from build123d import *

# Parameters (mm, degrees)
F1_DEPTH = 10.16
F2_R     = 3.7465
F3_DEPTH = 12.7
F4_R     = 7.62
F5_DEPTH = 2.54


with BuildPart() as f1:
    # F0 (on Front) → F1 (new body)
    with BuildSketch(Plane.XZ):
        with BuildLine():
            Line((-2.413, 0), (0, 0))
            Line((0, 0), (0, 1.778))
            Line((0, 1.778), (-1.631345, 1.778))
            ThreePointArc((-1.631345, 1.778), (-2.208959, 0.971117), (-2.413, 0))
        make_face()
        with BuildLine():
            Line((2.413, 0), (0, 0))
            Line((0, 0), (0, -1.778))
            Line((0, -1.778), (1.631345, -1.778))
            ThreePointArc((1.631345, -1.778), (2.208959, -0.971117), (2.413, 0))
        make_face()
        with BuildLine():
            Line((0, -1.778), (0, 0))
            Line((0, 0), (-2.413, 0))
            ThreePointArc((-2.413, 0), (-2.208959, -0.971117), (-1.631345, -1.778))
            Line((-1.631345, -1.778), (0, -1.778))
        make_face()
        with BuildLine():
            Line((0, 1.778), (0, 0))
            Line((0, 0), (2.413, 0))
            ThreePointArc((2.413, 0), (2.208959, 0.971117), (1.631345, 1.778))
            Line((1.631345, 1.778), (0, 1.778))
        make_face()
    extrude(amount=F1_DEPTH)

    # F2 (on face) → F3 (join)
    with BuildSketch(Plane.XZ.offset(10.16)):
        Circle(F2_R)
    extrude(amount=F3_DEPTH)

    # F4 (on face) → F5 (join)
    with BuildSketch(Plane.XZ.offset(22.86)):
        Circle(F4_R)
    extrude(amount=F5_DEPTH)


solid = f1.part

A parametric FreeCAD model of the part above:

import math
import FreeCAD as App
import Part
import Sketcher

V = App.Vector
Q = App.Units.Quantity

doc = App.newDocument("Part")
body = doc.addObject("PartDesign::Body", "Body")

sketch1 = body.newObject("Sketcher::SketchObject", "Sketch")
sketch1.AttachmentSupport = (doc.getObject("XZ_Plane"), [""])
sketch1.MapMode = "FlatFace"
sketch1.addGeometry([
    Part.ArcOfCircle(Part.Circle(V(0, 0, 0), V(0, 0, 1), 2.4), math.radians(133), math.radians(180)),
    Part.ArcOfCircle(Part.Circle(V(0, 0, 0), V(0, 0, 1), 2.4), math.radians(-180), math.radians(-133)),
    Part.LineSegment(V(-1.6, -1.8, 0), V(1.6, -1.8, 0)),
    Part.ArcOfCircle(Part.Circle(V(0, 0, 0), V(0, 0, 1), 2.4), math.radians(-47), math.radians(0)),
    Part.ArcOfCircle(Part.Circle(V(0, 0, 0), V(0, 0, 1), 2.4), math.radians(0), math.radians(47)),
    Part.LineSegment(V(1.6, 1.8, 0), V(-1.6, 1.8, 0)),
], False)
sketch1.addConstraint([
    Sketcher.Constraint("Tangent", 0, 2, 1, 1),
    Sketcher.Constraint("Coincident", 1, 2, 2, 1),
    Sketcher.Constraint("Coincident", 2, 2, 3, 1),
    Sketcher.Constraint("Tangent", 3, 2, 4, 1),
    Sketcher.Constraint("Coincident", 4, 2, 5, 1),
    Sketcher.Constraint("Coincident", 5, 2, 0, 1),
    Sketcher.Constraint("Horizontal", 2),
    Sketcher.Constraint("Horizontal", 5),
    Sketcher.Constraint("Coincident", 0, 3, -1, 1),
    Sketcher.Constraint("Coincident", 3, 3, -1, 1),
    Sketcher.Constraint("Equal", 0, 1),
    Sketcher.Constraint("Equal", 1, 3),
    Sketcher.Constraint("Equal", 3, 4),
    Sketcher.Constraint("PointOnObject", 0, 2, -1),
    Sketcher.Constraint("PointOnObject", 3, 2, -1),
    Sketcher.Constraint("Vertical", 2, 2, 4, 2),
    Sketcher.Constraint("Radius", 0, Q("0.0950002 in")),
    Sketcher.Constraint("DistanceY", 1, 2, -1, 1, Q("0.07 in")),
])
pad1 = body.newObject("PartDesign::Pad", "Pad")
pad1.Profile = sketch1
pad1.Length = Q("0.4 in")

sketch2 = body.newObject("Sketcher::SketchObject", "Sketch001")
sketch2.AttachmentSupport = (doc.getObject("XZ_Plane"), [""])
sketch2.MapMode = "FlatFace"
sketch2.AttachmentOffset = App.Placement(V(0, 0, 0.4 * 25.4), App.Rotation())
sketch2.addGeometry(Part.Circle(V(0, 0, 0), V(0, 0, 1), 3.7), False)
sketch2.addConstraint([
    Sketcher.Constraint("Coincident", 0, 3, -1, 1),
    Sketcher.Constraint("Diameter", 0, Q("0.295 in")),
])
pad2 = body.newObject("PartDesign::Pad", "Pad001")
pad2.Profile = sketch2
pad2.Length = Q("0.5 in")

sketch3 = body.newObject("Sketcher::SketchObject", "Sketch002")
sketch3.AttachmentSupport = (doc.getObject("XZ_Plane"), [""])
sketch3.MapMode = "FlatFace"
sketch3.AttachmentOffset = App.Placement(V(0, 0, 0.9 * 25.4), App.Rotation())
sketch3.addGeometry(Part.Circle(V(0, 0, 0), V(0, 0, 1), 8), False)
sketch3.addConstraint([
    Sketcher.Constraint("Coincident", 0, 3, -1, 1),
    Sketcher.Constraint("Diameter", 0, Q("0.6 in")),
])
pad3 = body.newObject("PartDesign::Pad", "Pad002")
pad3.Profile = sketch3
pad3.Length = Q("0.1 in")

doc.recompute()
